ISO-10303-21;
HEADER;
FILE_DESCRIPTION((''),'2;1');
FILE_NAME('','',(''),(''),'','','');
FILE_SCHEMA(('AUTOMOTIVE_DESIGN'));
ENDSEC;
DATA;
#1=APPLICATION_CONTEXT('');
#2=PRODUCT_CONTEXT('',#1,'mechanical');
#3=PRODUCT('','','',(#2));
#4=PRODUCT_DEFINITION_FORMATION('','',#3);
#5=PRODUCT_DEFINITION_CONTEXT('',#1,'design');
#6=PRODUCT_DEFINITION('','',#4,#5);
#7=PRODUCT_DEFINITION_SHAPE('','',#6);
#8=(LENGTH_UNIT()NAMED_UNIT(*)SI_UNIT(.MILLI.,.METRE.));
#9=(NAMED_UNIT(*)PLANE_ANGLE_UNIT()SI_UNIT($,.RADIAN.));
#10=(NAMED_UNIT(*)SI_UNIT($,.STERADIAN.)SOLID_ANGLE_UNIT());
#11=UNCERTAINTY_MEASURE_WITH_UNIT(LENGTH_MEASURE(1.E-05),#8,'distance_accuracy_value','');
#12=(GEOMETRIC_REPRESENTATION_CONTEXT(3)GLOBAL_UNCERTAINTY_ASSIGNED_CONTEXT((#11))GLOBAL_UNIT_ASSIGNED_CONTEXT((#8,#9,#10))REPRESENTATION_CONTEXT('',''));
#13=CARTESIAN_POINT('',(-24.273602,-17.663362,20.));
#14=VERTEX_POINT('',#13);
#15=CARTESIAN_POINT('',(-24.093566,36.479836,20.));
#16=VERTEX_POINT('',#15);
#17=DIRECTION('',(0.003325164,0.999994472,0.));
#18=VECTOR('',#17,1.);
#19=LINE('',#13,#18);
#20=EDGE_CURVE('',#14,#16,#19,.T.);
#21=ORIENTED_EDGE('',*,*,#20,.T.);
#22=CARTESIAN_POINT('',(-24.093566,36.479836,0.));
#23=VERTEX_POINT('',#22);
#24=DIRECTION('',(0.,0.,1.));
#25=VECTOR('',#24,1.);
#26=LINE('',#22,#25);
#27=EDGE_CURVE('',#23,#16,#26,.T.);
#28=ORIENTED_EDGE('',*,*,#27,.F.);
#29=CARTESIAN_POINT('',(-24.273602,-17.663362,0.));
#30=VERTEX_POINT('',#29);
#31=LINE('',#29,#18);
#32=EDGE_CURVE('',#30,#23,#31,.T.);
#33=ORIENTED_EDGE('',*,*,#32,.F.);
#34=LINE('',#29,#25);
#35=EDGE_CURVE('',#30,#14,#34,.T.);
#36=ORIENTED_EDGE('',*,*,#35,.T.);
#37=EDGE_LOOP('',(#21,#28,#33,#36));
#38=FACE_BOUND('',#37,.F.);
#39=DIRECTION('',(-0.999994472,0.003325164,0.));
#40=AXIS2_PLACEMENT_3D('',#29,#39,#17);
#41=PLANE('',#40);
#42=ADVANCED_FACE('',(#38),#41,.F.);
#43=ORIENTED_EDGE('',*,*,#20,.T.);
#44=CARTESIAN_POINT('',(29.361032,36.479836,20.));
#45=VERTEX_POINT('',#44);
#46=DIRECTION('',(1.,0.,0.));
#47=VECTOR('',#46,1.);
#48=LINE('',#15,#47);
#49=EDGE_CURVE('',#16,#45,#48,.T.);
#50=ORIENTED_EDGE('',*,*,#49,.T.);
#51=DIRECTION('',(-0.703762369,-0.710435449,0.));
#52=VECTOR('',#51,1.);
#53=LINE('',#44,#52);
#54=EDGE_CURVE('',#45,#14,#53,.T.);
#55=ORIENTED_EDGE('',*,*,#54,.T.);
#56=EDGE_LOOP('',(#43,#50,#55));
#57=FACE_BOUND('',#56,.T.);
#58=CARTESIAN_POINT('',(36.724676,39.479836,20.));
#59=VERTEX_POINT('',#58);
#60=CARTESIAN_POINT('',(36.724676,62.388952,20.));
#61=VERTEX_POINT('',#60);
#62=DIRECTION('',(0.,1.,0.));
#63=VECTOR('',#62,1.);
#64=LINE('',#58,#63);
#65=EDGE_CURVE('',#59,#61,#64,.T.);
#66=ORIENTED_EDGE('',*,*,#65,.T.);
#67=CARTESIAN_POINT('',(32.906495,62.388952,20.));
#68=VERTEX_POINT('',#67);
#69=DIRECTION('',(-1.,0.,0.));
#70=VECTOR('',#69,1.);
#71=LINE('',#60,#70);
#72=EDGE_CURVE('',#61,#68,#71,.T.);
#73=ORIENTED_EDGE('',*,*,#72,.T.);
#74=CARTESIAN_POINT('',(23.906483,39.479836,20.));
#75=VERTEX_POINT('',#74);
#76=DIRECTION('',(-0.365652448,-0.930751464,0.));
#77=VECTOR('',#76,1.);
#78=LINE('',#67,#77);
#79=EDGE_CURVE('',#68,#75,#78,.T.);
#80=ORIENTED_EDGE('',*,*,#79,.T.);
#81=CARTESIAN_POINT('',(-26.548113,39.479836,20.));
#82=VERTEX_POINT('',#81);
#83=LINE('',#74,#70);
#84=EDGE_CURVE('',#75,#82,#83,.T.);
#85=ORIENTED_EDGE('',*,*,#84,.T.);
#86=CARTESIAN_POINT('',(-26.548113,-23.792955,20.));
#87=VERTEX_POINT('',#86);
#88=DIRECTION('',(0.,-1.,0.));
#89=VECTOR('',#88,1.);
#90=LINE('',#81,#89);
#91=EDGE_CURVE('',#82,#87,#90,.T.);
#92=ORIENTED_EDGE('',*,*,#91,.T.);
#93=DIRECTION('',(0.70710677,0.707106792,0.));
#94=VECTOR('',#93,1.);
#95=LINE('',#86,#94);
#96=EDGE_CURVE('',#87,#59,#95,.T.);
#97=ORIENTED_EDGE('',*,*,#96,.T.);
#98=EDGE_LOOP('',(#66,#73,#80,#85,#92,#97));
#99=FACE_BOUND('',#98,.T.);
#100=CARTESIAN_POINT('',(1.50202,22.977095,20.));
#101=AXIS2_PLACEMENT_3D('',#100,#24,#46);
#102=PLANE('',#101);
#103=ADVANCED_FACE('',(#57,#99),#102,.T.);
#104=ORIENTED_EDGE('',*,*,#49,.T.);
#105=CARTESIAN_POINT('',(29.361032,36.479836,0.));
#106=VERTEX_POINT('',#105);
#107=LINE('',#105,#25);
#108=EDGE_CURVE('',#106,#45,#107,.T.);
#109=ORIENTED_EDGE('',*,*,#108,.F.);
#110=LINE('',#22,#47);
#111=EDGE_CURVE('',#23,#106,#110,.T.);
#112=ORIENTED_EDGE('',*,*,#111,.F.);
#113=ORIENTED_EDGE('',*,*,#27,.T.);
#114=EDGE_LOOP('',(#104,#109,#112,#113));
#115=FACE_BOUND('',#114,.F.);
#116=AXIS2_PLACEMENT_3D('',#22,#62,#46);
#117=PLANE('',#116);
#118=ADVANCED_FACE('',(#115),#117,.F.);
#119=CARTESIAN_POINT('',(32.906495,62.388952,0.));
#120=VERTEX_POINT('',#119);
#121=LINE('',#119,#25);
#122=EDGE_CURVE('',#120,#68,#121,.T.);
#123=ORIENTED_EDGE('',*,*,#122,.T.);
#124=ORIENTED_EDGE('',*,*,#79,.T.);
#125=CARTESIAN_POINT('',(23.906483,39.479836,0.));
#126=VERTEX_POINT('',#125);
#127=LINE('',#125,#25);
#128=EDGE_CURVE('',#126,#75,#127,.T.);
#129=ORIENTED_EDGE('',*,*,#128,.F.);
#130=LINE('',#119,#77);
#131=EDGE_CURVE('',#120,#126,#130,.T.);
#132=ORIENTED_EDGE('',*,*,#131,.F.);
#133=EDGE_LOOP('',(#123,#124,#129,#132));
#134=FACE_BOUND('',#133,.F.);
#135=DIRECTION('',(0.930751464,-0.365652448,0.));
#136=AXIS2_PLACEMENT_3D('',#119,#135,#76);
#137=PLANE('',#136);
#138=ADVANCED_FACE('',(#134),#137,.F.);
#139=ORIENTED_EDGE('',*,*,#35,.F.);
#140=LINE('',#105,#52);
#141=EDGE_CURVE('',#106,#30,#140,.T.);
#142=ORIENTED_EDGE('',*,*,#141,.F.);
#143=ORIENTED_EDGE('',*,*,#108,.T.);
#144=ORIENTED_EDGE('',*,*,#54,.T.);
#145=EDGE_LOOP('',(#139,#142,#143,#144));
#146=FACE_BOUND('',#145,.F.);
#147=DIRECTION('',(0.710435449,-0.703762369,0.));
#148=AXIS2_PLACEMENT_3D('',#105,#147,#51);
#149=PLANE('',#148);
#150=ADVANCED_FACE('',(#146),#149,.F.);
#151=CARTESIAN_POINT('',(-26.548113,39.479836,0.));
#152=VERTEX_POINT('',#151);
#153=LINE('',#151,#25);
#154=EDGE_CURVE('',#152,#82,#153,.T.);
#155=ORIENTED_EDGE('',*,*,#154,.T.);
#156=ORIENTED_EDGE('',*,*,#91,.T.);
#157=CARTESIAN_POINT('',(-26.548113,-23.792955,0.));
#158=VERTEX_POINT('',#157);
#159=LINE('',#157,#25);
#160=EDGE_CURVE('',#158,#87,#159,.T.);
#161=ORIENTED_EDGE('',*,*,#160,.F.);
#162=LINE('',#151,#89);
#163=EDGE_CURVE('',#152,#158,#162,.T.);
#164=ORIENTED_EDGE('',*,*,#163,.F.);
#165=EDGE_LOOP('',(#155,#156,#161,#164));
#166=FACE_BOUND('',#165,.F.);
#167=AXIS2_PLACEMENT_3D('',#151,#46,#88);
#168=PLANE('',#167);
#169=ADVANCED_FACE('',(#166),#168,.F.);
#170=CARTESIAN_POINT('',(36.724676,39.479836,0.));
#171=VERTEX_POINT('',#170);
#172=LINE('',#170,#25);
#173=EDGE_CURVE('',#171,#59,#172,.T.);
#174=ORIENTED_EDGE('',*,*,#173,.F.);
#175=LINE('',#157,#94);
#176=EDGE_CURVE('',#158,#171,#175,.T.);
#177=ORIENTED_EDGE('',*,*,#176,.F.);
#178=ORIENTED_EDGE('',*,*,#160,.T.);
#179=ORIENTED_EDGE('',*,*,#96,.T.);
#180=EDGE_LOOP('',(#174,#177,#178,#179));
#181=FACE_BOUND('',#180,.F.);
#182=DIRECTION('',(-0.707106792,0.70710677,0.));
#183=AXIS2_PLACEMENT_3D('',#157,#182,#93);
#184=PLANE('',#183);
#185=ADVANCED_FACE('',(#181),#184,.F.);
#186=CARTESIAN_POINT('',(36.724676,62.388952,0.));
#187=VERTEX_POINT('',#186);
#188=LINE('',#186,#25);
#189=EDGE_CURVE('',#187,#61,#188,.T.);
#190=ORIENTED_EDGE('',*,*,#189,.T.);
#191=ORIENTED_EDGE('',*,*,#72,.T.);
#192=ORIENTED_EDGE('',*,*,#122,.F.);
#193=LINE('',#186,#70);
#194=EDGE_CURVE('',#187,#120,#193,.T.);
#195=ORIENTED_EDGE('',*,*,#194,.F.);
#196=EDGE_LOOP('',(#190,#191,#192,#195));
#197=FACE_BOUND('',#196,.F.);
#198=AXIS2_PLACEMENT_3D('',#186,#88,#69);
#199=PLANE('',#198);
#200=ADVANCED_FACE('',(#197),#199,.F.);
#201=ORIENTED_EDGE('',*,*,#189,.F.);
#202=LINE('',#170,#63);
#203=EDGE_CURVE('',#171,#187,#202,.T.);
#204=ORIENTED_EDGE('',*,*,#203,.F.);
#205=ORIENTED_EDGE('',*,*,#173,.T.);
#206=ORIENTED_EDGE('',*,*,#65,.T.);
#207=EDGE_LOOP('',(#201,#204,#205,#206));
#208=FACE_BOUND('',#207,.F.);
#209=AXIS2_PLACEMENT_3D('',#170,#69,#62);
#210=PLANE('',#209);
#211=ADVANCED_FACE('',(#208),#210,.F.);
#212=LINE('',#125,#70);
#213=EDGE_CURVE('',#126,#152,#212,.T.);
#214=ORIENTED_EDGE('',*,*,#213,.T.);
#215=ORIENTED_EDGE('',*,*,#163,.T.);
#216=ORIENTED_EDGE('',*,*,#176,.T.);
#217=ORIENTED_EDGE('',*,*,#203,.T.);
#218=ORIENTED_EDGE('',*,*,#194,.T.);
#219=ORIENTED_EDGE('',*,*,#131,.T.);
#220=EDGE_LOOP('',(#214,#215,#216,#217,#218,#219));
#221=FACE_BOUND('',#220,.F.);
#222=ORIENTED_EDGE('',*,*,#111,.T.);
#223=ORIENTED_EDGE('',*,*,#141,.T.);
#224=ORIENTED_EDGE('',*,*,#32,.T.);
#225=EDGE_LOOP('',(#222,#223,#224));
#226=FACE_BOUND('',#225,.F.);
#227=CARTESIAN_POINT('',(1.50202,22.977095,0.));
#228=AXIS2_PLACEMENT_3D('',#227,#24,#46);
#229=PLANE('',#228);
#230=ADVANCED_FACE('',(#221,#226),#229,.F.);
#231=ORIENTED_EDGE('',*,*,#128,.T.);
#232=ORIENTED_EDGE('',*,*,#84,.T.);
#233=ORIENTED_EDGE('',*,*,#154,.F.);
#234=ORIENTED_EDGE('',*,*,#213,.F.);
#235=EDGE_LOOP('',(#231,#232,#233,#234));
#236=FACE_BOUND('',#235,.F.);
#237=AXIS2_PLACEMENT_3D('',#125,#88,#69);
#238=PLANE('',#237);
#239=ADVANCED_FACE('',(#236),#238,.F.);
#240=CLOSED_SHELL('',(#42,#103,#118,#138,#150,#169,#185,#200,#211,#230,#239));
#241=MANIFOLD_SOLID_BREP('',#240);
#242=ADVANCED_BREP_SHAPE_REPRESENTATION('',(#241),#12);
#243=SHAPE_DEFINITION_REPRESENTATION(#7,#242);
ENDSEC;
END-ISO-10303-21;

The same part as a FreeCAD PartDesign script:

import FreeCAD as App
import Part
import Sketcher

V = App.Vector
Q = App.Units.Quantity

doc = App.newDocument("Part")
body = doc.addObject("PartDesign::Body", "Body")

sketch1 = doc.addObject("Sketcher::SketchObject", "Sketch")
body.addObject(sketch1)
sketch1.AttachmentSupport = (doc.XY_Plane, [""])
sketch1.MapMode = "FlatFace"
sketch1.addGeometry([
    Part.LineSegment(V(32.9, 62.4, 0), V(23.9, 39.5, 0)),
    Part.LineSegment(V(23.9, 39.5, 0), V(-26.5, 39.5, 0)),
    Part.LineSegment(V(-26.5, 39.5, 0), V(-26.5, -23.8, 0)),
    Part.LineSegment(V(-26.5, -23.8, 0), V(36.7, 39.5, 0)),
    Part.LineSegment(V(36.7, 39.5, 0), V(36.7, 62.4, 0)),
    Part.LineSegment(V(36.7, 62.4, 0), V(32.9, 62.4, 0)),
    Part.LineSegment(V(29.4, 36.5, 0), V(-24.3, -17.7, 0)),
    Part.LineSegment(V(-24.3, -17.7, 0), V(-24.1, 36.5, 0)),
    Part.LineSegment(V(-24.1, 36.5, 0), V(29.4, 36.5, 0)),
], False)
sketch1.addConstraint([
    Sketcher.Constraint("Coincident", 0, 2, 1, 1),
    Sketcher.Constraint("Coincident", 1, 2, 2, 1),
    Sketcher.Constraint("Coincident", 2, 2, 3, 1),
    Sketcher.Constraint("Coincident", 3, 2, 4, 1),
    Sketcher.Constraint("Coincident", 4, 2, 5, 1),
    Sketcher.Constraint("Coincident", 5, 2, 0, 1),
    Sketcher.Constraint("Coincident", 6, 2, 7, 1),
    Sketcher.Constraint("Coincident", 7, 2, 8, 1),
    Sketcher.Constraint("Coincident", 8, 2, 6, 1),
    Sketcher.Constraint("Horizontal", 1),
    Sketcher.Constraint("Vertical", 2),
    Sketcher.Constraint("Vertical", 4),
    Sketcher.Constraint("Horizontal", 5),
    Sketcher.Constraint("Horizontal", 8),
    Sketcher.Constraint("Horizontal", 1, 2, 3, 2),
    Sketcher.Constraint("Angle", 3, Q("45.000001 deg")),
    Sketcher.Constraint("DistanceY", 7, 2, 1, 2, 3.0),
    Sketcher.Constraint("DistanceX", 8, 1, 8, 2, 53.454598),
    Sketcher.Constraint("DistanceX", 5, 2, 5, 1, 3.818181),
    Sketcher.Constraint("DistanceY", 2, 2, 2, 1, 63.272791),
    Sketcher.Constraint("Distance", 0, 24.61357),
    Sketcher.Constraint("DistanceX", 1, 2, 1, 1, 50.454596),
    Sketcher.Constraint("DistanceY", 6, 2, -1, 1, 17.663362),
    Sketcher.Constraint("DistanceX", 2, 2, 6, 2, 2.274511),
    Sketcher.Constraint("DistanceX", 7, 2, 0, 2, 48.000049),
    Sketcher.Constraint("Distance", 6, 76.211284),
    Sketcher.Constraint("DistanceX", -1, 1, 0, 2, 23.906483),
])
pad1 = doc.addObject("PartDesign::Pad", "Pad")
body.addObject(pad1)
pad1.Profile = sketch1
pad1.Length = 20

doc.recompute()
